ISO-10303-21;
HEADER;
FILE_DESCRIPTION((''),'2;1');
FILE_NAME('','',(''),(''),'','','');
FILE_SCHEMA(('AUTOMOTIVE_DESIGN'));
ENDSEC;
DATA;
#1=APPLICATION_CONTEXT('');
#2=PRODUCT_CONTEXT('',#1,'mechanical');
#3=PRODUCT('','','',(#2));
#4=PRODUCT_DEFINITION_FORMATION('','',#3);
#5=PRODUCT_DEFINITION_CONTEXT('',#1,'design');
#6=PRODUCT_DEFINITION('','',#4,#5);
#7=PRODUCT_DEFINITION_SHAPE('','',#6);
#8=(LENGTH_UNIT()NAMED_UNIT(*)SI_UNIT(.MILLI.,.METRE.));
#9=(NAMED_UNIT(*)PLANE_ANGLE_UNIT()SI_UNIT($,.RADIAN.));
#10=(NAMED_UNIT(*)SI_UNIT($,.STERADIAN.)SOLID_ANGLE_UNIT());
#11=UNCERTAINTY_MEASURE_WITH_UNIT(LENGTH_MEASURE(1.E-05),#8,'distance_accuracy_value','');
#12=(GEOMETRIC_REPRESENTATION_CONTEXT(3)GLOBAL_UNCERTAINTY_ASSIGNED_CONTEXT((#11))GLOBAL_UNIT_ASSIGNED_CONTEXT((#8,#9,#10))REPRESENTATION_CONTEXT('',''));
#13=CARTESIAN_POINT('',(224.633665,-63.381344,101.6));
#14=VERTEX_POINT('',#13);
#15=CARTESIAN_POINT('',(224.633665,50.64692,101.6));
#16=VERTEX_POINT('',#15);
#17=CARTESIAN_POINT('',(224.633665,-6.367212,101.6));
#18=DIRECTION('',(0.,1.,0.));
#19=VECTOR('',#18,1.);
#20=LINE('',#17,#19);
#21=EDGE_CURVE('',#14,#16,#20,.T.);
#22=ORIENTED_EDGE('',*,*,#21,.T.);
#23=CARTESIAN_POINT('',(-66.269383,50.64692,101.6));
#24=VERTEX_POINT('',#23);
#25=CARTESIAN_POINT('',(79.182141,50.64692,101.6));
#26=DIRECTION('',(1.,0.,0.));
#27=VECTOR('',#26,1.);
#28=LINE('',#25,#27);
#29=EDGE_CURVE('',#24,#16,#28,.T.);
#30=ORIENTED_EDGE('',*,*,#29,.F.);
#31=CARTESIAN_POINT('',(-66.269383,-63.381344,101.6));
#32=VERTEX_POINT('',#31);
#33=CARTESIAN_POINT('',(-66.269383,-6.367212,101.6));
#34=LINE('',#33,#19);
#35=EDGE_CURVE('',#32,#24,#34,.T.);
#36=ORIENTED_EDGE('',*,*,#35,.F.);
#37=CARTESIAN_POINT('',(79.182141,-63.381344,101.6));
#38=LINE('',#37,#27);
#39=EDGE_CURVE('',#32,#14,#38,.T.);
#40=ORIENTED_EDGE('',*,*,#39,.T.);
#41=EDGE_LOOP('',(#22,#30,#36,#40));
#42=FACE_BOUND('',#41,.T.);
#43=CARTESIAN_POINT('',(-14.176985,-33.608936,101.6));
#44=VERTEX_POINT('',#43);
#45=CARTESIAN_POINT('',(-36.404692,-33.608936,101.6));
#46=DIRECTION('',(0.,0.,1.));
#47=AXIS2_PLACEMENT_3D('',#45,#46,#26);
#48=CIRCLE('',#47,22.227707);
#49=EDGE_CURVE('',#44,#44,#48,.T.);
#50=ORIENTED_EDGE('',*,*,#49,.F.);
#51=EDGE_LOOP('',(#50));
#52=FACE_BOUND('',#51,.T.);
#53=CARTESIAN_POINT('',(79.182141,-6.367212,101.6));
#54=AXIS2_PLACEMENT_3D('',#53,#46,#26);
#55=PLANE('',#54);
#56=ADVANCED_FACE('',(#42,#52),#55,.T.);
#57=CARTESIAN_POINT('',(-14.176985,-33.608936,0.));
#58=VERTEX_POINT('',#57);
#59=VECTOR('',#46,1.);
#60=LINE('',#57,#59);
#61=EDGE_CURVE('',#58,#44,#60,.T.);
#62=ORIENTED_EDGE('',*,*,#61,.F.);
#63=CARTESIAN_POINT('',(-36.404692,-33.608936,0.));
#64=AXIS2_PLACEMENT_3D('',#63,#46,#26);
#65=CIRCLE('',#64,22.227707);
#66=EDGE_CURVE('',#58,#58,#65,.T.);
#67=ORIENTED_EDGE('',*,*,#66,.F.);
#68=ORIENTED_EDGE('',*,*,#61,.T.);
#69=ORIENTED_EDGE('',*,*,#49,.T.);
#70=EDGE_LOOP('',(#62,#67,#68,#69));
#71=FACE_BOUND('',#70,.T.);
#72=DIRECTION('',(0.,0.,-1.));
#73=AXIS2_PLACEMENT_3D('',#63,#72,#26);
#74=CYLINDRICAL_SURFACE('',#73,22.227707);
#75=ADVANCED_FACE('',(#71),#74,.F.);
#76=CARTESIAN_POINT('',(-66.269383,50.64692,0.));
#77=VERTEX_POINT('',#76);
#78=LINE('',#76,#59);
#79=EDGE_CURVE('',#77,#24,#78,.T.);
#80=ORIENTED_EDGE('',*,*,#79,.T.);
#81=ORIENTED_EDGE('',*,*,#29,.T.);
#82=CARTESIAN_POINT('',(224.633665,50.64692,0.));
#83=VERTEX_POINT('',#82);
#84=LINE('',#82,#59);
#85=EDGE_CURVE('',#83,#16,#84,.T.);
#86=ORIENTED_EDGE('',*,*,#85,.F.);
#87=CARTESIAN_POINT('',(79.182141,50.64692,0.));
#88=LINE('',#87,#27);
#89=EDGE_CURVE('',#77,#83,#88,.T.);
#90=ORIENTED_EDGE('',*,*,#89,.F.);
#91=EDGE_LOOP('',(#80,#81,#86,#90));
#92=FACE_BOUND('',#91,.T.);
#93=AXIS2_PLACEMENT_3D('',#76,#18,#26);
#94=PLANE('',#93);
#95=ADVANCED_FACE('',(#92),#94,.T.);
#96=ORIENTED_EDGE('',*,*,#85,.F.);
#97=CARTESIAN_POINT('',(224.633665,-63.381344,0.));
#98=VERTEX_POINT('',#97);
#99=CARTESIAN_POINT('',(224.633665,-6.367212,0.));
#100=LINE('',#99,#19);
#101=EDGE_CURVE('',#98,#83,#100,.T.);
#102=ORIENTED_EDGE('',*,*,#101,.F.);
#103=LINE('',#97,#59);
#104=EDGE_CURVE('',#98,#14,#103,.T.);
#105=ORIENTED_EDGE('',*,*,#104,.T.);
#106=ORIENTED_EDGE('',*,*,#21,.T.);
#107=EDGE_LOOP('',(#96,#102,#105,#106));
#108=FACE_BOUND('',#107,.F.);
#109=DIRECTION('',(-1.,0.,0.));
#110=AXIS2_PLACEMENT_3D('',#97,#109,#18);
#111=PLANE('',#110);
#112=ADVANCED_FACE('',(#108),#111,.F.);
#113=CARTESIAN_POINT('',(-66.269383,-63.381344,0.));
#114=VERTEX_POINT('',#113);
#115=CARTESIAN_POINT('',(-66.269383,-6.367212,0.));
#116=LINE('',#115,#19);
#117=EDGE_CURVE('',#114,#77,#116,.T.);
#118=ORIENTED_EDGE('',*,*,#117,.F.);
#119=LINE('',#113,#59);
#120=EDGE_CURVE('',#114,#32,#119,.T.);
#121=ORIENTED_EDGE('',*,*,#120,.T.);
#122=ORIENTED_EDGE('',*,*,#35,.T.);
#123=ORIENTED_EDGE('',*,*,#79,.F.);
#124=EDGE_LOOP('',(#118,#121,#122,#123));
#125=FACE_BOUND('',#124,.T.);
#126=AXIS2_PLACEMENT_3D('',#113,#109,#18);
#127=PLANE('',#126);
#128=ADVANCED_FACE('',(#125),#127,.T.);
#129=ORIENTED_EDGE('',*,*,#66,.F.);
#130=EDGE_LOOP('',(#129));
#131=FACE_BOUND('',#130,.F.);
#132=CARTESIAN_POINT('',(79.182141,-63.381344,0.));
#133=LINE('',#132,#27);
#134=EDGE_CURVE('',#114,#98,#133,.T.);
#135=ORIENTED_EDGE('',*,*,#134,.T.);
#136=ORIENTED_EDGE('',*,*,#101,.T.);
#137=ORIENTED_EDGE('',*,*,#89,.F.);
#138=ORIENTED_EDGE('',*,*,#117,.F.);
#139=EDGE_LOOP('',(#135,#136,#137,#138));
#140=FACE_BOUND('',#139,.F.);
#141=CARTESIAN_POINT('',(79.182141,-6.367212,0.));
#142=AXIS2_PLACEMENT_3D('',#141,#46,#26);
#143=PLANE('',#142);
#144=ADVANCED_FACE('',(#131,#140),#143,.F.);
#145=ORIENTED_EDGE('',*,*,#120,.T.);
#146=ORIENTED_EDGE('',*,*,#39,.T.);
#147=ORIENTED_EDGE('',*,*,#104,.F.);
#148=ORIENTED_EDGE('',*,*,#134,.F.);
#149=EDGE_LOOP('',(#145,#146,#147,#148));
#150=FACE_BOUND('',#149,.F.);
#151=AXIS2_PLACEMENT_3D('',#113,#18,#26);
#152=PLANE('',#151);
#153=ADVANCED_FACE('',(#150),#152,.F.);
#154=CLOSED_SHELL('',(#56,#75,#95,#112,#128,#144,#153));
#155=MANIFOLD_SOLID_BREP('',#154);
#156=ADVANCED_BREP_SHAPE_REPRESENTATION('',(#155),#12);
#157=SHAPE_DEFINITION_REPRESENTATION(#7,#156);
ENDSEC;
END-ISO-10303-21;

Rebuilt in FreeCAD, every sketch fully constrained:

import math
import FreeCAD as App
import Part
import Sketcher
Q = App.Units.Quantity


def add_polygon(sketch, points):
    """Adds a closed chain of lines whose ends are joined by coincident constraints."""
    first, n = sketch.GeometryCount, len(points)
    for a, b in zip(points, points[1:] + points[:1]):
        sketch.addGeometry(Part.LineSegment(App.Vector(*a, 0), App.Vector(*b, 0)), False)
    for i in range(n):
        sketch.addConstraint(Sketcher.Constraint("Coincident", first + i, 2, first + (i + 1) % n, 1))

doc = App.newDocument("Part")
body = doc.addObject("PartDesign::Body", "Body")

# Sketch on XY plane
sketch1 = doc.addObject("Sketcher::SketchObject", "Sketch")
body.addObject(sketch1)
sketch1.AttachmentSupport = (doc.XY_Plane, [""])
sketch1.MapMode = "FlatFace"
add_polygon(sketch1, [(-66, 51), (-66, -63), (225, -63), (225, 51)])  # lines 0-3
sketch1.addGeometry(Part.Circle(App.Vector(-36, -34, 0), App.Vector(0, 0, 1), 22), False)  # 4
sketch1.addConstraint([
    Sketcher.Constraint("Vertical", 0),
    Sketcher.Constraint("Horizontal", 1),
    Sketcher.Constraint("Vertical", 2),
    Sketcher.Constraint("Horizontal", 3),
    Sketcher.Constraint("Diameter", 4, 44.455414),
    Sketcher.Constraint("DistanceX", 1, 1, 1, 2, 290.903047),
    Sketcher.Constraint("DistanceY", 0, 2, 0, 1, 114.028264),
    Sketcher.Constraint("DistanceX", 4, 3, -1, 1, 36.404692),
    Sketcher.Constraint("DistanceY", -1, 1, 2, 2, 50.64692),
    Sketcher.Constraint("DistanceX", 0, 2, 4, 3, 29.864691),
    Sketcher.Constraint("DistanceY", 4, 3, -1, 1, 33.608936),
])
pad1 = doc.addObject("PartDesign::Pad", "Pad")
body.addObject(pad1)
pad1.Profile = sketch1
pad1.Length = Q("4 in")

# Sketch on XY plane
sketch2 = doc.addObject("Sketcher::SketchObject", "Sketch001")
body.addObject(sketch2)
sketch2.AttachmentSupport = (doc.XY_Plane, [""])
sketch2.MapMode = "FlatFace"
sketch2.AttachmentOffset = App.Placement(App.Vector(0, 0, 4 * 25.4), App.Rotation())
sketch2.addGeometry([
    Part.LineSegment(App.Vector(114, 18, 0), App.Vector(91, 18, 0)),
    Part.LineSegment(App.Vector(91, 18, 0), App.Vector(91, 4, 0)),
    Part.ArcOfCircle(Part.Circle(App.Vector(100, -19, 0), App.Vector(0, 0, 1), 24), math.radians(112), math.radians(415)),
    Part.LineSegment(App.Vector(114, 1, 0), App.Vector(114, 18, 0)),
], False)
sketch2.addConstraint([
    Sketcher.Constraint("Coincident", 0, 2, 1, 1),
    Sketcher.Constraint("Coincident", 1, 2, 2, 1),
    Sketcher.Constraint("Coincident", 2, 2, 3, 1),
    Sketcher.Constraint("Coincident", 3, 2, 0, 1),
    Sketcher.Constraint("Horizontal", 0),
    Sketcher.Constraint("Vertical", 1),
    Sketcher.Constraint("Vertical", 3),
    Sketcher.Constraint("Radius", 2, 24.12057),
    Sketcher.Constraint("DistanceX", 0, 2, 0, 1, 22.947319),
    Sketcher.Constraint("DistanceY", 3, 1, 3, 2, 16.817659),
    Sketcher.Constraint("DistanceY", 1, 2, 1, 1, 14.106555),
    Sketcher.Constraint("DistanceY", -1, 1, 1, 2, 3.507722),
    Sketcher.Constraint("DistanceX", -1, 1, 2, 3, 99.709258),
])
pocket1 = doc.addObject("PartDesign::Pocket", "Pocket")
body.addObject(pocket1)
pocket1.Profile = sketch2
pocket1.Length = Q("1 in")
pocket1.Reversed = True

doc.recompute()
